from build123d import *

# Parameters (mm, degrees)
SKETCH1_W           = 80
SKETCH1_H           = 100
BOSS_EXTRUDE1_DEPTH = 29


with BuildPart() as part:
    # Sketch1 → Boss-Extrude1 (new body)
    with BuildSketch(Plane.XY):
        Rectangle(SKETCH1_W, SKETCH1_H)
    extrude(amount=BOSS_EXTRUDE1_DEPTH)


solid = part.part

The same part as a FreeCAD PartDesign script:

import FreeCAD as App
import Part
import Sketcher
from FreeCAD import Vector


def add_polygon(sketch, points):
    """Adds a closed chain of lines whose ends are joined by coincident constraints."""
    first, n = sketch.GeometryCount, len(points)
    for a, b in zip(points, points[1:] + points[:1]):
        sketch.addGeometry(Part.LineSegment(App.Vector(*a, 0), App.Vector(*b, 0)), False)
    for i in range(n):
        sketch.addConstraint(Sketcher.Constraint("Coincident", first + i, 2, first + (i + 1) % n, 1))

doc = App.newDocument("Part")
body = doc.addObject("PartDesign::Body", "Body")

# Sketch on XY plane
sketch1 = body.newObject("Sketcher::SketchObject", "Sketch")
sketch1.AttachmentSupport = (doc.getObject("XY_Plane"), [""])
sketch1.MapMode = "FlatFace"
add_polygon(sketch1, [(-40, 50), (-40, -50), (40, -50), (40, 50)])  # lines 0-3
sketch1.addConstraint(Sketcher.Constraint("Vertical", 0))
sketch1.addConstraint(Sketcher.Constraint("Horizontal", 1))
sketch1.addConstraint(Sketcher.Constraint("Vertical", 2))
sketch1.addConstraint(Sketcher.Constraint("Horizontal", 3))
sketch1.addConstraint(Sketcher.Constraint("Symmetric", 0, 2, 2, 2, -1, 1))
sketch1.addConstraint(Sketcher.Constraint("DistanceX", 1, 1, 1, 2, 80.0))
sketch1.addConstraint(Sketcher.Constraint("DistanceY", 0, 2, 0, 1, 100.0))
pad1 = body.newObject("PartDesign::Pad", "Pad")
pad1.Profile = sketch1
pad1.Length = 29

doc.recompute()
